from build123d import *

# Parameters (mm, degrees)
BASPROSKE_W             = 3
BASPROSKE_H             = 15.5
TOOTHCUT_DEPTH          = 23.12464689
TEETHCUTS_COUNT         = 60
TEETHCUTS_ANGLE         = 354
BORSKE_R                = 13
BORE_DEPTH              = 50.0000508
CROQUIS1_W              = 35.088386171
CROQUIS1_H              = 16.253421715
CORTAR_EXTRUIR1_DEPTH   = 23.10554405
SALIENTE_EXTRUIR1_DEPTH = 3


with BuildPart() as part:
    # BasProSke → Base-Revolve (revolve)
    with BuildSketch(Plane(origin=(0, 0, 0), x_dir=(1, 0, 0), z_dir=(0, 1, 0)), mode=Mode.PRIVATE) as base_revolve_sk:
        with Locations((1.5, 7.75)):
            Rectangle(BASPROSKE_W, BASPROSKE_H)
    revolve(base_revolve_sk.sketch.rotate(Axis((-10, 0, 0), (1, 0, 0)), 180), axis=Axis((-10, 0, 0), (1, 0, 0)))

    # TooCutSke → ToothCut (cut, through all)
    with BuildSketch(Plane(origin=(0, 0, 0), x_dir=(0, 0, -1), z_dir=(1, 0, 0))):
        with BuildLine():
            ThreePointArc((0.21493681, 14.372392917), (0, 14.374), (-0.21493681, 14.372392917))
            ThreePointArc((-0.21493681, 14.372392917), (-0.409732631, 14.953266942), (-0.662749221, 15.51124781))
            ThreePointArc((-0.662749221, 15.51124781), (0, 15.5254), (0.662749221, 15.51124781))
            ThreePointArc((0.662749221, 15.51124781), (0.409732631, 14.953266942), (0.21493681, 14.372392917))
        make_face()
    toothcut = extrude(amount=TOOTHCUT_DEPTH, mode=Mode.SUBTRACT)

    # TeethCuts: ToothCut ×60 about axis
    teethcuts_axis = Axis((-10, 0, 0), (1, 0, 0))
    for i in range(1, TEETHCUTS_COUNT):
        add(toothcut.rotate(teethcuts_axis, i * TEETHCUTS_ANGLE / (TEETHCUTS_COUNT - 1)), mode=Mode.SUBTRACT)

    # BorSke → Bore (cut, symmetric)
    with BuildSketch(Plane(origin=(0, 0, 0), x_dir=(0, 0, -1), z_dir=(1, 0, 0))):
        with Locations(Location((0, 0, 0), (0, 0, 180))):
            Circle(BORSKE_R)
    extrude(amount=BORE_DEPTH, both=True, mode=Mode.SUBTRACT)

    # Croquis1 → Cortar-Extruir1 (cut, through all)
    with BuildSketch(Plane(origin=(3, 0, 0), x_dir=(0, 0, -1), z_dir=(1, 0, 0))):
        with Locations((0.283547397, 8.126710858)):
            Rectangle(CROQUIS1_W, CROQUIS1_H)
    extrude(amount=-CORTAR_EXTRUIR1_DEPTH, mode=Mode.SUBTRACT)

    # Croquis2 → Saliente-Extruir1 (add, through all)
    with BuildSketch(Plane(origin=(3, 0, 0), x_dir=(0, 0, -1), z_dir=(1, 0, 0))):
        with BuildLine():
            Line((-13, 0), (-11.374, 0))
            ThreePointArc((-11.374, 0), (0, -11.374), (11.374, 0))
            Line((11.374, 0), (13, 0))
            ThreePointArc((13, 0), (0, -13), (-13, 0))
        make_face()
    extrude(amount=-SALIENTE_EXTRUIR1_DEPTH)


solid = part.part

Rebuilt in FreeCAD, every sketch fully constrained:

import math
import FreeCAD as App
import Part
import Sketcher

V = App.Vector
Q = App.Units.Quantity


def add_polygon(sketch, points):
    """Adds a closed chain of lines whose ends are joined by coincident constraints."""
    first, n = sketch.GeometryCount, len(points)
    for a, b in zip(points, points[1:] + points[:1]):
        sketch.addGeometry(Part.LineSegment(App.Vector(*a, 0), App.Vector(*b, 0)), False)
    for i in range(n):
        sketch.addConstraint(Sketcher.Constraint("Coincident", first + i, 2, first + (i + 1) % n, 1))

doc = App.newDocument("Part")
params = doc.addObject("Spreadsheet::Sheet", "Params")
for row, (alias, value) in enumerate([
    ("sketch1_width", "3 mm"),
    ("sketch1_height", "15.5 mm"),
    ("revolution_angle", "360 deg"),
    ("sketch2_radius", "6 mm"),
    ("sketch3_diameter", "26 mm"),
    ("pocket2_length", "100.000102 mm"),
    ("sketch5_radius", "13 mm"),
    ("pad1_length", "3 mm"),
], start=1):
    params.set(f"A{row}", alias)
    params.set(f"B{row}", "=" + value)
    params.setAlias(f"B{row}", alias)

body = doc.addObject("PartDesign::Body", "Body")

# Sketch on XZ plane
sketch1 = body.newObject("Sketcher::SketchObject", "Sketch")
sketch1.AttachmentSupport = (doc.getObject("XZ_Plane"), [""])
sketch1.MapMode = "FlatFace"
add_polygon(sketch1, [(0, -15.5), (0, 0), (3, 0), (3, -15.5)])  # lines 0-3
sketch1.addConstraint(Sketcher.Constraint("Vertical", 0))
sketch1.addConstraint(Sketcher.Constraint("Horizontal", 1))
sketch1.addConstraint(Sketcher.Constraint("Vertical", 2))
sketch1.addConstraint(Sketcher.Constraint("Horizontal", 3))
sketch1.addConstraint(Sketcher.Constraint("Coincident", 0, 2, -1, 1))
sketch1.addConstraint(Sketcher.Constraint("DistanceX", 1, 1, 1, 2, Q("3 mm")))
sketch1.addConstraint(Sketcher.Constraint("DistanceY", 0, 1, 0, 2, Q("15.5 mm")))
sketch1.setExpression("Constraints[9]", "Params.sketch1_width")
sketch1.setExpression("Constraints[10]", "Params.sketch1_height")
revolution = body.newObject("PartDesign::Revolution", "Revolution")
revolution.Profile = sketch1
revolution.ReferenceAxis = (sketch1, ["H_Axis"])
revolution.setExpression("Angle", "Params.revolution_angle")

# Sketch on YZ plane
sketch2 = body.newObject("Sketcher::SketchObject", "Sketch001")
sketch2.AttachmentSupport = (doc.getObject("YZ_Plane"), [""])
sketch2.MapMode = "FlatFace"
sketch2.addGeometry(Part.ArcOfCircle(Part.Circle(V(0, 0, 0), V(0, 0, 1), 14.37), math.radians(-0.86), math.radians(0.86)), False)
sketch2.addGeometry(Part.ArcOfCircle(Part.Circle(V(12.76, -5.99, 0), V(0, 0, 1), 6), math.radians(62.68), math.radians(74.39)), False)
sketch2.addGeometry(Part.ArcOfCircle(Part.Circle(V(0, 0, 0), V(0, 0, 1), 15.53), math.radians(-2.45), math.radians(2.45)), False)
sketch2.addGeometry(Part.ArcOfCircle(Part.Circle(V(12.76, 5.99, 0), V(0, 0, 1), 6), math.radians(-74.39), math.radians(-62.68)), False)
sketch2.addConstraint(Sketcher.Constraint("Coincident", 0, 1, 1, 2))
sketch2.addConstraint(Sketcher.Constraint("Coincident", 1, 1, 2, 1))
sketch2.addConstraint(Sketcher.Constraint("Coincident", 2, 2, 3, 2))
sketch2.addConstraint(Sketcher.Constraint("Coincident", 3, 1, 0, 2))
sketch2.addConstraint(Sketcher.Constraint("Coincident", 0, 3, -1, 1))
sketch2.addConstraint(Sketcher.Constraint("Coincident", 2, 3, -1, 1))
sketch2.addConstraint(Sketcher.Constraint("Equal", 1, 3))
sketch2.addConstraint(Sketcher.Constraint("Symmetric", 1, 3, 3, 3, -1))
sketch2.addConstraint(Sketcher.Constraint("Radius", 1, Q("6 mm")))
sketch2.addConstraint(Sketcher.Constraint("Radius", 2, Q("15.5254 mm")))
sketch2.addConstraint(Sketcher.Constraint("Radius", 0, Q("14.373998 mm")))
sketch2.addConstraint(Sketcher.Constraint("DistanceY", 1, 1, 2, 2, Q("1.325498 mm")))
sketch2.addConstraint(Sketcher.Constraint("DistanceX", 0, 3, 1, 3, Q("12.75763 mm")))
sketch2.setExpression("Constraints[8]", "Params.sketch2_radius")
pocket1 = body.newObject("PartDesign::Pocket", "Pocket")
pocket1.Profile = sketch2
pocket1.Type = "ThroughAll"
pocket1.Reversed = True
doc.recompute()

polarpattern = body.newObject("PartDesign::PolarPattern", "PolarPattern")
polarpattern.Originals = [pocket1]
polarpattern.Axis = (doc.getObject("X_Axis"), [""])
polarpattern.Angle = 360
polarpattern.Occurrences = 60
body.Tip = polarpattern

# Sketch on YZ plane
sketch3 = body.newObject("Sketcher::SketchObject", "Sketch002")
sketch3.AttachmentSupport = (doc.getObject("YZ_Plane"), [""])
sketch3.MapMode = "FlatFace"
sketch3.addGeometry(Part.Circle(V(0, 0, 0), V(0, 0, 1), 13), False)
sketch3.addConstraint(Sketcher.Constraint("Coincident", 0, 3, -1, 1))
sketch3.addConstraint(Sketcher.Constraint("Diameter", 0, Q("26 mm")))
sketch3.setExpression("Constraints[1]", "Params.sketch3_diameter")
pocket2 = body.newObject("PartDesign::Pocket", "Pocket001")
pocket2.Profile = sketch3
pocket2.setExpression("Length", "Params.pocket2_length")
pocket2.Midplane = True

# Sketch on YZ plane
sketch4 = body.newObject("Sketcher::SketchObject", "Sketch003")
sketch4.AttachmentSupport = (doc.getObject("YZ_Plane"), [""])
sketch4.MapMode = "FlatFace"
sketch4.AttachmentOffset = App.Placement(V(0, 0, 3), App.Rotation())
add_polygon(sketch4, [(16, 17), (0, 17), (0, -18), (16, -18)])  # lines 0-3
sketch4.addConstraint(Sketcher.Constraint("Horizontal", 0))
sketch4.addConstraint(Sketcher.Constraint("Vertical", 1))
sketch4.addConstraint(Sketcher.Constraint("Horizontal", 2))
sketch4.addConstraint(Sketcher.Constraint("Vertical", 3))
sketch4.addConstraint(Sketcher.Constraint("PointOnObject", 0, 2, -2))
sketch4.addConstraint(Sketcher.Constraint("DistanceX", 0, 2, 0, 1, Q("16.253422 mm")))
sketch4.addConstraint(Sketcher.Constraint("DistanceY", 1, 2, 1, 1, Q("35.088386 mm")))
sketch4.addConstraint(Sketcher.Constraint("DistanceY", 1, 2, -1, 1, Q("17.82774 mm")))
pocket3 = body.newObject("PartDesign::Pocket", "Pocket002")
pocket3.Profile = sketch4
pocket3.Type = "ThroughAll"

# Sketch on YZ plane
sketch5 = body.newObject("Sketcher::SketchObject", "Sketch004")
sketch5.AttachmentSupport = (doc.getObject("YZ_Plane"), [""])
sketch5.MapMode = "FlatFace"
sketch5.AttachmentOffset = App.Placement(V(0, 0, 3), App.Rotation())
sketch5.addGeometry(Part.LineSegment(V(0, 11.4, 0), V(0, 13, 0)), False)
sketch5.addGeometry(Part.ArcOfCircle(Part.Circle(V(0, 0, 0), V(0, 0, 1), 13), math.radians(90), math.radians(270)), False)
sketch5.addGeometry(Part.LineSegment(V(0, -13, 0), V(0, -11.4, 0)), False)
sketch5.addGeometry(Part.ArcOfCircle(Part.Circle(V(0, 0, 0), V(0, 0, 1), 11.4), math.radians(90), math.radians(270)), False)
sketch5.addConstraint(Sketcher.Constraint("Coincident", 0, 2, 1, 1))
sketch5.addConstraint(Sketcher.Constraint("Coincident", 1, 2, 2, 1))
sketch5.addConstraint(Sketcher.Constraint("Coincident", 2, 2, 3, 2))
sketch5.addConstraint(Sketcher.Constraint("Coincident", 3, 1, 0, 1))
sketch5.addConstraint(Sketcher.Constraint("Vertical", 0))
sketch5.addConstraint(Sketcher.Constraint("Vertical", 2))
sketch5.addConstraint(Sketcher.Constraint("Coincident", 1, 3, -1, 1))
sketch5.addConstraint(Sketcher.Constraint("Coincident", 3, 3, -1, 1))
sketch5.addConstraint(Sketcher.Constraint("PointOnObject", 0, 2, -2))
sketch5.addConstraint(Sketcher.Constraint("PointOnObject", 1, 2, -2))
sketch5.addConstraint(Sketcher.Constraint("Radius", 1, Q("13 mm")))
sketch5.addConstraint(Sketcher.Constraint("Radius", 3, Q("11.374 mm")))
sketch5.setExpression("Constraints[10]", "Params.sketch5_radius")
pad1 = body.newObject("PartDesign::Pad", "Pad")
pad1.Profile = sketch5
pad1.setExpression("Length", "Params.pad1_length")
pad1.Reversed = True

doc.recompute()
